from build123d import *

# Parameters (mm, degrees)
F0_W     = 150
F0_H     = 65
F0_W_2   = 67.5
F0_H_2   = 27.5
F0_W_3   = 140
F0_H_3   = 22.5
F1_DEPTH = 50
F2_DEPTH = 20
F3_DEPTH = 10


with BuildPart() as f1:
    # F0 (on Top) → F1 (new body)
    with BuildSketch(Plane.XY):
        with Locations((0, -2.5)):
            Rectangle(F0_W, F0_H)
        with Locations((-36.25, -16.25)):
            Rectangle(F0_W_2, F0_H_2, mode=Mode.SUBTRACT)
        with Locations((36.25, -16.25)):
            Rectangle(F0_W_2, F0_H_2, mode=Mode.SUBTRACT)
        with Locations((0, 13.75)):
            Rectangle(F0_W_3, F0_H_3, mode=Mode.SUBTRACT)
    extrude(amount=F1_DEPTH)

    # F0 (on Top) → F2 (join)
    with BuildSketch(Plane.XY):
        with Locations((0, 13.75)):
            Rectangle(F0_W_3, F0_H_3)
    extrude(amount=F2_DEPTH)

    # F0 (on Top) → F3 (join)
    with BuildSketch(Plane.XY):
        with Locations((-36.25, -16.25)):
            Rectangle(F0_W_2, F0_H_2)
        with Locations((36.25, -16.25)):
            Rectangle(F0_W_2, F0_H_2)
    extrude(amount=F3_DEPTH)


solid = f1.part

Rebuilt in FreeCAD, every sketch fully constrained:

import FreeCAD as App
import Part
import Sketcher

V = App.Vector


def add_polygon(sketch, points):
    """Adds a closed chain of lines whose ends are joined by coincident constraints."""
    first, n = sketch.GeometryCount, len(points)
    for a, b in zip(points, points[1:] + points[:1]):
        sketch.addGeometry(Part.LineSegment(App.Vector(*a, 0), App.Vector(*b, 0)), False)
    for i in range(n):
        sketch.addConstraint(Sketcher.Constraint("Coincident", first + i, 2, first + (i + 1) % n, 1))

doc = App.newDocument("Part")
params = doc.addObject("Spreadsheet::Sheet", "Params")
for row, (alias, value) in enumerate([
    ("sketch1_width", "150 mm"),
    ("sketch1_width2", "140 mm"),
    ("sketch1_height", "65 mm"),
    ("sketch1_width3", "67.5 mm"),
    ("sketch1_height2", "27.5 mm"),
    ("pad1_length", "50 mm"),
    ("sketch2_width", "140 mm"),
    ("sketch2_height", "22.5 mm"),
    ("pad2_length", "20 mm"),
    ("sketch3_width", "67.5 mm"),
    ("sketch3_height", "27.5 mm"),
    ("pad3_length", "10 mm"),
], start=1):
    params.set(f"A{row}", alias)
    params.set(f"B{row}", "=" + value)
    params.setAlias(f"B{row}", alias)

body = doc.addObject("PartDesign::Body", "Body")

sketch1 = body.newObject("Sketcher::SketchObject", "Sketch")
sketch1.AttachmentSupport = (doc.getObject("XY_Plane"), [""])
sketch1.MapMode = "FlatFace"
add_polygon(sketch1, [(-75, 30), (-75, -35), (75, -35), (75, 30)])
add_polygon(sketch1, [(-2, -30), (-70, -30), (-70, -2), (-2, -2)])
add_polygon(sketch1, [(70, -30), (2, -30), (2, -2), (70, -2)])
add_polygon(sketch1, [(70, 2), (-70, 2), (-70, 25), (70, 25)])
sketch1.addConstraint([
    Sketcher.Constraint("Vertical", 0),
    Sketcher.Constraint("Horizontal", 1),
    Sketcher.Constraint("Vertical", 2),
    Sketcher.Constraint("Horizontal", 3),
    Sketcher.Constraint("Horizontal", 4),
    Sketcher.Constraint("Vertical", 5),
    Sketcher.Constraint("Horizontal", 6),
    Sketcher.Constraint("Vertical", 7),
    Sketcher.Constraint("Horizontal", 8),
    Sketcher.Constraint("Vertical", 9),
    Sketcher.Constraint("Horizontal", 10),
    Sketcher.Constraint("Vertical", 11),
    Sketcher.Constraint("Horizontal", 12),
    Sketcher.Constraint("Vertical", 13),
    Sketcher.Constraint("Horizontal", 14),
    Sketcher.Constraint("Vertical", 15),
    Sketcher.Constraint("Symmetric", 10, 2, 12, 2, -1, 1),
    Sketcher.Constraint("Symmetric", 5, 2, 15, 2, -1, 1),
    Sketcher.Constraint("Symmetric", 7, 2, 8, 2, -2),
    Sketcher.Constraint("Vertical", 5, 2, 12, 2),
    Sketcher.Constraint("DistanceX", 1, 1, 1, 2, 150.0),
    Sketcher.Constraint("DistanceX", 12, 2, 12, 1, 140.0),
    Sketcher.Constraint("DistanceY", 0, 2, 0, 1, 65.0),
    Sketcher.Constraint("DistanceX", 4, 2, 4, 1, 67.5),
    Sketcher.Constraint("DistanceY", 5, 1, 5, 2, 27.5),
    Sketcher.Constraint("DistanceY", 13, 1, 13, 2, 22.5),
    Sketcher.Constraint("DistanceX", 0, 2, -1, 1, 75.0),
    Sketcher.Constraint("DistanceY", 0, 2, -1, 1, 35.0),
    Sketcher.Constraint("DistanceY", 4, 2, -1, 1, 30.0),
])
sketch1.setExpression("Constraints[36]", "Params.sketch1_width")
sketch1.setExpression("Constraints[37]", "Params.sketch1_width2")
sketch1.setExpression("Constraints[38]", "Params.sketch1_height")
sketch1.setExpression("Constraints[39]", "Params.sketch1_width3")
sketch1.setExpression("Constraints[40]", "Params.sketch1_height2")
pad1 = body.newObject("PartDesign::Pad", "Pad")
pad1.Profile = sketch1
pad1.setExpression("Length", "Params.pad1_length")

sketch2 = body.newObject("Sketcher::SketchObject", "Sketch001")
sketch2.AttachmentSupport = (doc.getObject("XY_Plane"), [""])
sketch2.MapMode = "FlatFace"
add_polygon(sketch2, [(-70, 25), (-70, 2), (70, 2), (70, 25)])
sketch2.addConstraint([
    Sketcher.Constraint("Vertical", 0),
    Sketcher.Constraint("Horizontal", 1),
    Sketcher.Constraint("Vertical", 2),
    Sketcher.Constraint("Horizontal", 3),
    Sketcher.Constraint("DistanceX", 1, 1, 1, 2, 140.0),
    Sketcher.Constraint("DistanceY", 0, 2, 0, 1, 22.5),
    Sketcher.Constraint("DistanceX", 0, 2, -1, 1, 70.0),
    Sketcher.Constraint("DistanceY", -1, 1, 2, 2, 25.0),
])
sketch2.setExpression("Constraints[8]", "Params.sketch2_width")
sketch2.setExpression("Constraints[9]", "Params.sketch2_height")
pad2 = body.newObject("PartDesign::Pad", "Pad001")
pad2.Profile = sketch2
pad2.setExpression("Length", "Params.pad2_length")

sketch3 = body.newObject("Sketcher::SketchObject", "Sketch002")
sketch3.AttachmentSupport = (doc.getObject("XY_Plane"), [""])
sketch3.MapMode = "FlatFace"
add_polygon(sketch3, [(-70, -2), (-70, -30), (-2, -30), (-2, -2)])
add_polygon(sketch3, [(2, -2), (2, -30), (70, -30), (70, -2)])
sketch3.addConstraint([
    Sketcher.Constraint("Vertical", 0),
    Sketcher.Constraint("Horizontal", 1),
    Sketcher.Constraint("Vertical", 2),
    Sketcher.Constraint("Horizontal", 3),
    Sketcher.Constraint("Vertical", 4),
    Sketcher.Constraint("Horizontal", 5),
    Sketcher.Constraint("Vertical", 6),
    Sketcher.Constraint("Horizontal", 7),
    Sketcher.Constraint("Symmetric", 1, 2, 4, 2, -2),
    Sketcher.Constraint("Symmetric", 3, 2, 6, 2, -2),
    Sketcher.Constraint("DistanceX", 1, 1, 1, 2, 67.5),
    Sketcher.Constraint("DistanceY", 0, 2, 0, 1, 27.5),
    Sketcher.Constraint("DistanceX", 0, 2, -1, 1, 70.0),
    Sketcher.Constraint("DistanceY", 0, 2, -1, 1, 30.0),
])
sketch3.setExpression("Constraints[18]", "Params.sketch3_width")
sketch3.setExpression("Constraints[19]", "Params.sketch3_height")
pad3 = body.newObject("PartDesign::Pad", "Pad002")
pad3.Profile = sketch3
pad3.setExpression("Length", "Params.pad3_length")

doc.recompute()
